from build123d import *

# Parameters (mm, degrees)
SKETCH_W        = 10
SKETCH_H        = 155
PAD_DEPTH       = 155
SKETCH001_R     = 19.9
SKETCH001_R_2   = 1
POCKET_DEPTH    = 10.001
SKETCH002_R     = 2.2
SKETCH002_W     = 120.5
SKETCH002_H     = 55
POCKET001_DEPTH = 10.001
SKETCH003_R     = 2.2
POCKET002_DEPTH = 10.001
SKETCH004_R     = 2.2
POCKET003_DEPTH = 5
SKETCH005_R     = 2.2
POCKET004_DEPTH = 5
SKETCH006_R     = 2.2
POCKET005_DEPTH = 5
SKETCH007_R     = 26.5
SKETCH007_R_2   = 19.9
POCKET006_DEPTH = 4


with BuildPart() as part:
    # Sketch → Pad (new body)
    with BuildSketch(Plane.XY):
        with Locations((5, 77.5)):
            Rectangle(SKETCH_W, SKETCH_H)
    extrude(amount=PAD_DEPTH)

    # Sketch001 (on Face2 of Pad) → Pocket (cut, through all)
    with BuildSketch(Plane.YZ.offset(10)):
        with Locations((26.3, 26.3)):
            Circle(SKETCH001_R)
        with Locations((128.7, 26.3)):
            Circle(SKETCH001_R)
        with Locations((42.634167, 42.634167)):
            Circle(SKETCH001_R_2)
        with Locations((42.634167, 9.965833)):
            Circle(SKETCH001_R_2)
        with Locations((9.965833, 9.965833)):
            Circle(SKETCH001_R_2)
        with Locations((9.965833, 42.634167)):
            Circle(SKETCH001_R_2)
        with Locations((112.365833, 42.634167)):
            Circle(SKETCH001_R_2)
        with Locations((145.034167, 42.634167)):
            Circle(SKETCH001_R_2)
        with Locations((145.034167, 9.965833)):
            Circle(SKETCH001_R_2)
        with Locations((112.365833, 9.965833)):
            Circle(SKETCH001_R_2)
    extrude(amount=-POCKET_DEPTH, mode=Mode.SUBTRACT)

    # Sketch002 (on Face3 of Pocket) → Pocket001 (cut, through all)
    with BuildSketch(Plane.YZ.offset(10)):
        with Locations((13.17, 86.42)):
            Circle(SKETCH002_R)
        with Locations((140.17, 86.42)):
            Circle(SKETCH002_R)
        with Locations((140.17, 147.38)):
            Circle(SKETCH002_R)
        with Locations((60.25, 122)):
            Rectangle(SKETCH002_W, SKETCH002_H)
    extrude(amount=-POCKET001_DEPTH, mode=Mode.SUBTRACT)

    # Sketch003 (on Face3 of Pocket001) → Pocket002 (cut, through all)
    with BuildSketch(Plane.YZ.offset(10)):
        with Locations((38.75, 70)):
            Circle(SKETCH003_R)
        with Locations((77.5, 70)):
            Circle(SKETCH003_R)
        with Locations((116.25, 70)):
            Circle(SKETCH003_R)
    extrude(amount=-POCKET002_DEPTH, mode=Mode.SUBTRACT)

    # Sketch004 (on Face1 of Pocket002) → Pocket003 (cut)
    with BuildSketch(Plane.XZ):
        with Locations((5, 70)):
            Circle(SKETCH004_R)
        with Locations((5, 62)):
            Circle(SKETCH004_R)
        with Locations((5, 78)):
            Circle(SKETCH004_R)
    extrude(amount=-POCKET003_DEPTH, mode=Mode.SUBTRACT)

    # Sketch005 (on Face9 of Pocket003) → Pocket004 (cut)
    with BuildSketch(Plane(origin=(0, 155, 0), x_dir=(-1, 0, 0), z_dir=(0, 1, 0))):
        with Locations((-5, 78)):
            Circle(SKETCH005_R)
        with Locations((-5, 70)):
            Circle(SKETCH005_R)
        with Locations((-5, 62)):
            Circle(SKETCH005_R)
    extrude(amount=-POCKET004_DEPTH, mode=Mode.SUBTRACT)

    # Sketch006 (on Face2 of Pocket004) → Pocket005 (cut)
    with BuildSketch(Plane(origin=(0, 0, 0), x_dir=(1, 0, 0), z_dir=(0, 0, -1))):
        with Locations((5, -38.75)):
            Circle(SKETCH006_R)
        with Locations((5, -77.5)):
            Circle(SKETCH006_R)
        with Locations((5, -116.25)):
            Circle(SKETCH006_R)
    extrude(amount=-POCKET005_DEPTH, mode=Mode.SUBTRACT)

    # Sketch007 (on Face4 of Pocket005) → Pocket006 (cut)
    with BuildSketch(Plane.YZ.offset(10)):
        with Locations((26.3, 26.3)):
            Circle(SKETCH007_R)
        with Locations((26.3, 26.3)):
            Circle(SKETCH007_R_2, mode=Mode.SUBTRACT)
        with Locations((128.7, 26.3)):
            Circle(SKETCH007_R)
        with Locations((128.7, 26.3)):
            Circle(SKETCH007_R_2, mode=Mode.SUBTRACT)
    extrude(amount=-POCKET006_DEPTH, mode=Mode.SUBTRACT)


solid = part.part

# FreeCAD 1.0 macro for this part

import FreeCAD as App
import Part
import Sketcher
from FreeCAD import Vector


def add_polygon(sketch, points):
    """Adds a closed chain of lines whose ends are joined by coincident constraints."""
    first, n = sketch.GeometryCount, len(points)
    for a, b in zip(points, points[1:] + points[:1]):
        sketch.addGeometry(Part.LineSegment(App.Vector(*a, 0), App.Vector(*b, 0)), False)
    for i in range(n):
        sketch.addConstraint(Sketcher.Constraint("Coincident", first + i, 2, first + (i + 1) % n, 1))

doc = App.newDocument("Part")
body = doc.addObject("PartDesign::Body", "Body")

# Sketch on XY plane
sketch1 = doc.addObject("Sketcher::SketchObject", "Sketch")
body.addObject(sketch1)
sketch1.AttachmentSupport = (doc.XY_Plane, [""])
sketch1.MapMode = "FlatFace"
add_polygon(sketch1, [(0, 155), (0, 0), (10, 0), (10, 155)])  # lines 0-3
sketch1.addConstraint(Sketcher.Constraint("Vertical", 0))
sketch1.addConstraint(Sketcher.Constraint("Horizontal", 1))
sketch1.addConstraint(Sketcher.Constraint("Vertical", 2))
sketch1.addConstraint(Sketcher.Constraint("Horizontal", 3))
sketch1.addConstraint(Sketcher.Constraint("Coincident", 0, 2, -1, 1))
sketch1.addConstraint(Sketcher.Constraint("DistanceX", 1, 1, 1, 2, 10.0))
sketch1.addConstraint(Sketcher.Constraint("DistanceY", 0, 2, 0, 1, 155.0))
pad1 = doc.addObject("PartDesign::Pad", "Pad")
body.addObject(pad1)
pad1.Profile = sketch1
pad1.Length = 155

# Sketch on YZ plane
sketch2 = doc.addObject("Sketcher::SketchObject", "Sketch001")
body.addObject(sketch2)
sketch2.AttachmentSupport = (doc.YZ_Plane, [""])
sketch2.MapMode = "FlatFace"
sketch2.AttachmentOffset = App.Placement(Vector(0, 0, 10), App.Rotation())
sketch2.addGeometry(Part.Circle(Vector(26.3, 26.3, 0), Vector(0, 0, 1), 19.9), False)
sketch2.addGeometry(Part.Circle(Vector(128.7, 26.3, 0), Vector(0, 0, 1), 19.9), False)
sketch2.addGeometry(Part.Circle(Vector(42.6, 42.6, 0), Vector(0, 0, 1), 1), False)
sketch2.addGeometry(Part.Circle(Vector(42.6, 10, 0), Vector(0, 0, 1), 1), False)
sketch2.addGeometry(Part.Circle(Vector(10, 10, 0), Vector(0, 0, 1), 1), False)
sketch2.addGeometry(Part.Circle(Vector(10, 42.6, 0), Vector(0, 0, 1), 1), False)
sketch2.addGeometry(Part.Circle(Vector(112.4, 42.6, 0), Vector(0, 0, 1), 1), False)
sketch2.addGeometry(Part.Circle(Vector(145, 42.6, 0), Vector(0, 0, 1), 1), False)
sketch2.addGeometry(Part.Circle(Vector(145, 10, 0), Vector(0, 0, 1), 1), False)
sketch2.addGeometry(Part.Circle(Vector(112.4, 10, 0), Vector(0, 0, 1), 1), False)
sketch2.addConstraint(Sketcher.Constraint("Equal", 0, 1))
sketch2.addConstraint(Sketcher.Constraint("Equal", 2, 3))
sketch2.addConstraint(Sketcher.Constraint("Equal", 3, 4))
sketch2.addConstraint(Sketcher.Constraint("Equal", 4, 5))
sketch2.addConstraint(Sketcher.Constraint("Equal", 5, 6))
sketch2.addConstraint(Sketcher.Constraint("Equal", 6, 7))
sketch2.addConstraint(Sketcher.Constraint("Equal", 7, 8))
sketch2.addConstraint(Sketcher.Constraint("Equal", 8, 9))
sketch2.addConstraint(Sketcher.Constraint("Horizontal", 0, 3, 1, 3))
sketch2.addConstraint(Sketcher.Constraint("Horizontal", 3, 3, 4, 3))
sketch2.addConstraint(Sketcher.Constraint("Horizontal", 2, 3, 5, 3))
sketch2.addConstraint(Sketcher.Constraint("Horizontal", 5, 3, 6, 3))
sketch2.addConstraint(Sketcher.Constraint("Horizontal", 6, 3, 7, 3))
sketch2.addConstraint(Sketcher.Constraint("Horizontal", 4, 3, 8, 3))
sketch2.addConstraint(Sketcher.Constraint("Horizontal", 8, 3, 9, 3))
sketch2.addConstraint(Sketcher.Constraint("Vertical", 2, 3, 3, 3))
sketch2.addConstraint(Sketcher.Constraint("Vertical", 4, 3, 5, 3))
sketch2.addConstraint(Sketcher.Constraint("Vertical", 7, 3, 8, 3))
sketch2.addConstraint(Sketcher.Constraint("Vertical", 6, 3, 9, 3))
sketch2.addConstraint(Sketcher.Constraint("Diameter", 2, 2.0))
sketch2.addConstraint(Sketcher.Constraint("Diameter", 0, 39.8))
sketch2.addConstraint(Sketcher.Constraint("DistanceX", -1, 1, 0, 3, 26.3))
sketch2.addConstraint(Sketcher.Constraint("DistanceY", -1, 1, 0, 3, 26.3))
sketch2.addConstraint(Sketcher.Constraint("DistanceX", -1, 1, 1, 3, 128.7))
sketch2.addConstraint(Sketcher.Constraint("DistanceX", 5, 3, 6, 3, 102.4))
sketch2.addConstraint(Sketcher.Constraint("DistanceX", 2, 3, 7, 3, 102.4))
sketch2.addConstraint(Sketcher.Constraint("DistanceX", -1, 1, 2, 3, 42.634167))
sketch2.addConstraint(Sketcher.Constraint("DistanceY", -1, 1, 2, 3, 42.634167))
sketch2.addConstraint(Sketcher.Constraint("DistanceY", -1, 1, 3, 3, 9.965833))
sketch2.addConstraint(Sketcher.Constraint("DistanceX", -1, 1, 4, 3, 9.965833))
pocket1 = doc.addObject("PartDesign::Pocket", "Pocket")
body.addObject(pocket1)
pocket1.Profile = sketch2
pocket1.Type = "ThroughAll"

# Sketch on YZ plane
sketch3 = doc.addObject("Sketcher::SketchObject", "Sketch002")
body.addObject(sketch3)
sketch3.AttachmentSupport = (doc.YZ_Plane, [""])
sketch3.MapMode = "FlatFace"
sketch3.AttachmentOffset = App.Placement(Vector(0, 0, 10), App.Rotation())
sketch3.addGeometry(Part.Circle(Vector(13.2, 86.4, 0), Vector(0, 0, 1), 2.2), False)  # 0
sketch3.addGeometry(Part.Circle(Vector(140.2, 86.4, 0), Vector(0, 0, 1), 2.2), False)  # 1
sketch3.addGeometry(Part.Circle(Vector(140.2, 147.4, 0), Vector(0, 0, 1), 2.2), False)  # 2
add_polygon(sketch3, [(0, 149.5), (0, 94.5), (120.5, 94.5), (120.5, 149.5)])  # lines 3-6
sketch3.addConstraint(Sketcher.Constraint("Vertical", 3))
sketch3.addConstraint(Sketcher.Constraint("Horizontal", 4))
sketch3.addConstraint(Sketcher.Constraint("Vertical", 5))
sketch3.addConstraint(Sketcher.Constraint("Horizontal", 6))
sketch3.addConstraint(Sketcher.Constraint("Equal", 0, 1))
sketch3.addConstraint(Sketcher.Constraint("Equal", 1, 2))
sketch3.addConstraint(Sketcher.Constraint("PointOnObject", 3, 2, -2))
sketch3.addConstraint(Sketcher.Constraint("Horizontal", 0, 3, 1, 3))
sketch3.addConstraint(Sketcher.Constraint("Vertical", 1, 3, 2, 3))
sketch3.addConstraint(Sketcher.Constraint("Diameter", 0, 4.4))
sketch3.addConstraint(Sketcher.Constraint("DistanceY", 3, 2, 3, 1, 55.0))
sketch3.addConstraint(Sketcher.Constraint("DistanceX", 4, 1, 4, 2, 120.5))
sketch3.addConstraint(Sketcher.Constraint("DistanceX", 0, 3, 1, 3, 127.0))
sketch3.addConstraint(Sketcher.Constraint("DistanceY", -1, 1, 3, 2, 94.5))
sketch3.addConstraint(Sketcher.Constraint("DistanceX", -1, 1, 0, 3, 13.17))
sketch3.addConstraint(Sketcher.Constraint("DistanceY", -1, 1, 0, 3, 86.42))
sketch3.addConstraint(Sketcher.Constraint("DistanceY", -1, 1, 2, 3, 147.38))
pocket2 = doc.addObject("PartDesign::Pocket", "Pocket001")
body.addObject(pocket2)
pocket2.Profile = sketch3
pocket2.Type = "ThroughAll"

# Sketch on YZ plane
sketch4 = doc.addObject("Sketcher::SketchObject", "Sketch003")
body.addObject(sketch4)
sketch4.AttachmentSupport = (doc.YZ_Plane, [""])
sketch4.MapMode = "FlatFace"
sketch4.AttachmentOffset = App.Placement(Vector(0, 0, 10), App.Rotation())
sketch4.addGeometry(Part.Circle(Vector(38.8, 70, 0), Vector(0, 0, 1), 2.2), False)
sketch4.addGeometry(Part.Circle(Vector(77.5, 70, 0), Vector(0, 0, 1), 2.2), False)
sketch4.addGeometry(Part.Circle(Vector(116.2, 70, 0), Vector(0, 0, 1), 2.2), False)
sketch4.addConstraint(Sketcher.Constraint("Equal", 0, 1))
sketch4.addConstraint(Sketcher.Constraint("Equal", 1, 2))
sketch4.addConstraint(Sketcher.Constraint("Horizontal", 0, 3, 1, 3))
sketch4.addConstraint(Sketcher.Constraint("Horizontal", 1, 3, 2, 3))
sketch4.addConstraint(Sketcher.Constraint("Diameter", 0, 4.4))
sketch4.addConstraint(Sketcher.Constraint("DistanceY", -1, 1, 0, 3, 70.0))
sketch4.addConstraint(Sketcher.Constraint("DistanceX", -1, 1, 1, 3, 77.5))
sketch4.addConstraint(Sketcher.Constraint("DistanceX", 0, 3, 2, 3, 77.5))
sketch4.addConstraint(Sketcher.Constraint("DistanceX", -1, 1, 0, 3, 38.75))
pocket3 = doc.addObject("PartDesign::Pocket", "Pocket002")
body.addObject(pocket3)
pocket3.Profile = sketch4
pocket3.Type = "ThroughAll"

# Sketch on XZ plane
sketch5 = doc.addObject("Sketcher::SketchObject", "Sketch004")
body.addObject(sketch5)
sketch5.AttachmentSupport = (doc.XZ_Plane, [""])
sketch5.MapMode = "FlatFace"
sketch5.addGeometry(Part.Circle(Vector(5, 70, 0), Vector(0, 0, 1), 2.2), False)
sketch5.addGeometry(Part.Circle(Vector(5, 62, 0), Vector(0, 0, 1), 2.2), False)
sketch5.addGeometry(Part.Circle(Vector(5, 78, 0), Vector(0, 0, 1), 2.2), False)
sketch5.addConstraint(Sketcher.Constraint("Equal", 0, 1))
sketch5.addConstraint(Sketcher.Constraint("Equal", 1, 2))
sketch5.addConstraint(Sketcher.Constraint("Vertical", 0, 3, 1, 3))
sketch5.addConstraint(Sketcher.Constraint("Vertical", 1, 3, 2, 3))
sketch5.addConstraint(Sketcher.Constraint("Diameter", 0, 4.4))
sketch5.addConstraint(Sketcher.Constraint("DistanceX", -1, 1, 0, 3, 5.0))
sketch5.addConstraint(Sketcher.Constraint("DistanceY", -1, 1, 0, 3, 70.0))
sketch5.addConstraint(Sketcher.Constraint("DistanceY", -1, 1, 1, 3, 62.0))
sketch5.addConstraint(Sketcher.Constraint("DistanceY", -1, 1, 2, 3, 78.0))
pocket4 = doc.addObject("PartDesign::Pocket", "Pocket003")
body.addObject(pocket4)
pocket4.Profile = sketch5
pocket4.Length = 5

# Sketch on XZ plane
sketch6 = doc.addObject("Sketcher::SketchObject", "Sketch005")
body.addObject(sketch6)
sketch6.AttachmentSupport = (doc.XZ_Plane, [""])
sketch6.MapMode = "FlatFace"
sketch6.AttachmentOffset = App.Placement(Vector(0, 0, -155), App.Rotation())
sketch6.addGeometry(Part.Circle(Vector(5, 78, 0), Vector(0, 0, 1), 2.2), False)
sketch6.addGeometry(Part.Circle(Vector(5, 70, 0), Vector(0, 0, 1), 2.2), False)
sketch6.addGeometry(Part.Circle(Vector(5, 62, 0), Vector(0, 0, 1), 2.2), False)
sketch6.addConstraint(Sketcher.Constraint("Equal", 0, 1))
sketch6.addConstraint(Sketcher.Constraint("Equal", 1, 2))
sketch6.addConstraint(Sketcher.Constraint("Vertical", 0, 3, 1, 3))
sketch6.addConstraint(Sketcher.Constraint("Vertical", 1, 3, 2, 3))
sketch6.addConstraint(Sketcher.Constraint("Diameter", 0, 4.4))
sketch6.addConstraint(Sketcher.Constraint("DistanceX", -1, 1, 0, 3, 5.0))
sketch6.addConstraint(Sketcher.Constraint("DistanceY", -1, 1, 0, 3, 78.0))
sketch6.addConstraint(Sketcher.Constraint("DistanceY", -1, 1, 1, 3, 70.0))
sketch6.addConstraint(Sketcher.Constraint("DistanceY", -1, 1, 2, 3, 62.0))
pocket5 = doc.addObject("PartDesign::Pocket", "Pocket004")
body.addObject(pocket5)
pocket5.Profile = sketch6
pocket5.Length = 5
pocket5.Reversed = True

# Sketch on XY plane
sketch7 = doc.addObject("Sketcher::SketchObject", "Sketch006")
body.addObject(sketch7)
sketch7.AttachmentSupport = (doc.XY_Plane, [""])
sketch7.MapMode = "FlatFace"
sketch7.addGeometry(Part.Circle(Vector(5, 38.8, 0), Vector(0, 0, 1), 2.2), False)
sketch7.addGeometry(Part.Circle(Vector(5, 77.5, 0), Vector(0, 0, 1), 2.2), False)
sketch7.addGeometry(Part.Circle(Vector(5, 116.2, 0), Vector(0, 0, 1), 2.2), False)
sketch7.addConstraint(Sketcher.Constraint("Equal", 0, 1))
sketch7.addConstraint(Sketcher.Constraint("Equal", 1, 2))
sketch7.addConstraint(Sketcher.Constraint("Vertical", 0, 3, 1, 3))
sketch7.addConstraint(Sketcher.Constraint("Vertical", 1, 3, 2, 3))
sketch7.addConstraint(Sketcher.Constraint("Diameter", 0, 4.4))
sketch7.addConstraint(Sketcher.Constraint("DistanceX", -1, 1, 0, 3, 5.0))
sketch7.addConstraint(Sketcher.Constraint("DistanceY", -1, 1, 1, 3, 77.5))
sketch7.addConstraint(Sketcher.Constraint("DistanceY", 0, 3, 2, 3, 77.5))
sketch7.addConstraint(Sketcher.Constraint("DistanceY", -1, 1, 0, 3, 38.75))
pocket6 = doc.addObject("PartDesign::Pocket", "Pocket005")
body.addObject(pocket6)
pocket6.Profile = sketch7
pocket6.Length = 5
pocket6.Reversed = True

# Sketch on YZ plane
sketch8 = doc.addObject("Sketcher::SketchObject", "Sketch007")
body.addObject(sketch8)
sketch8.AttachmentSupport = (doc.YZ_Plane, [""])
sketch8.MapMode = "FlatFace"
sketch8.AttachmentOffset = App.Placement(Vector(0, 0, 10), App.Rotation())
sketch8.addGeometry(Part.Circle(Vector(26, 26, 0), Vector(0, 0, 1), 26), False)
sketch8.addGeometry(Part.Circle(Vector(26, 26, 0), Vector(0, 0, 1), 20), False)
sketch8.addGeometry(Part.Circle(Vector(129, 26, 0), Vector(0, 0, 1), 26), False)
sketch8.addGeometry(Part.Circle(Vector(129, 26, 0), Vector(0, 0, 1), 20), False)
sketch8.addConstraint(Sketcher.Constraint("Coincident", 1, 3, 0, 3))
sketch8.addConstraint(Sketcher.Constraint("Coincident", 3, 3, 2, 3))
sketch8.addConstraint(Sketcher.Constraint("Equal", 0, 2))
sketch8.addConstraint(Sketcher.Constraint("Equal", 1, 3))
sketch8.addConstraint(Sketcher.Constraint("Horizontal", 1, 3, 2, 3))
sketch8.addConstraint(Sketcher.Constraint("Diameter", 0, 53.0))
sketch8.addConstraint(Sketcher.Constraint("Diameter", 1, 39.8))
sketch8.addConstraint(Sketcher.Constraint("DistanceX", -1, 1, 0, 3, 26.3))
sketch8.addConstraint(Sketcher.Constraint("DistanceY", -1, 1, 0, 3, 26.3))
sketch8.addConstraint(Sketcher.Constraint("DistanceX", -1, 1, 2, 3, 128.7))
pocket7 = doc.addObject("PartDesign::Pocket", "Pocket006")
body.addObject(pocket7)
pocket7.Profile = sketch8
pocket7.Length = 4

doc.recompute()
